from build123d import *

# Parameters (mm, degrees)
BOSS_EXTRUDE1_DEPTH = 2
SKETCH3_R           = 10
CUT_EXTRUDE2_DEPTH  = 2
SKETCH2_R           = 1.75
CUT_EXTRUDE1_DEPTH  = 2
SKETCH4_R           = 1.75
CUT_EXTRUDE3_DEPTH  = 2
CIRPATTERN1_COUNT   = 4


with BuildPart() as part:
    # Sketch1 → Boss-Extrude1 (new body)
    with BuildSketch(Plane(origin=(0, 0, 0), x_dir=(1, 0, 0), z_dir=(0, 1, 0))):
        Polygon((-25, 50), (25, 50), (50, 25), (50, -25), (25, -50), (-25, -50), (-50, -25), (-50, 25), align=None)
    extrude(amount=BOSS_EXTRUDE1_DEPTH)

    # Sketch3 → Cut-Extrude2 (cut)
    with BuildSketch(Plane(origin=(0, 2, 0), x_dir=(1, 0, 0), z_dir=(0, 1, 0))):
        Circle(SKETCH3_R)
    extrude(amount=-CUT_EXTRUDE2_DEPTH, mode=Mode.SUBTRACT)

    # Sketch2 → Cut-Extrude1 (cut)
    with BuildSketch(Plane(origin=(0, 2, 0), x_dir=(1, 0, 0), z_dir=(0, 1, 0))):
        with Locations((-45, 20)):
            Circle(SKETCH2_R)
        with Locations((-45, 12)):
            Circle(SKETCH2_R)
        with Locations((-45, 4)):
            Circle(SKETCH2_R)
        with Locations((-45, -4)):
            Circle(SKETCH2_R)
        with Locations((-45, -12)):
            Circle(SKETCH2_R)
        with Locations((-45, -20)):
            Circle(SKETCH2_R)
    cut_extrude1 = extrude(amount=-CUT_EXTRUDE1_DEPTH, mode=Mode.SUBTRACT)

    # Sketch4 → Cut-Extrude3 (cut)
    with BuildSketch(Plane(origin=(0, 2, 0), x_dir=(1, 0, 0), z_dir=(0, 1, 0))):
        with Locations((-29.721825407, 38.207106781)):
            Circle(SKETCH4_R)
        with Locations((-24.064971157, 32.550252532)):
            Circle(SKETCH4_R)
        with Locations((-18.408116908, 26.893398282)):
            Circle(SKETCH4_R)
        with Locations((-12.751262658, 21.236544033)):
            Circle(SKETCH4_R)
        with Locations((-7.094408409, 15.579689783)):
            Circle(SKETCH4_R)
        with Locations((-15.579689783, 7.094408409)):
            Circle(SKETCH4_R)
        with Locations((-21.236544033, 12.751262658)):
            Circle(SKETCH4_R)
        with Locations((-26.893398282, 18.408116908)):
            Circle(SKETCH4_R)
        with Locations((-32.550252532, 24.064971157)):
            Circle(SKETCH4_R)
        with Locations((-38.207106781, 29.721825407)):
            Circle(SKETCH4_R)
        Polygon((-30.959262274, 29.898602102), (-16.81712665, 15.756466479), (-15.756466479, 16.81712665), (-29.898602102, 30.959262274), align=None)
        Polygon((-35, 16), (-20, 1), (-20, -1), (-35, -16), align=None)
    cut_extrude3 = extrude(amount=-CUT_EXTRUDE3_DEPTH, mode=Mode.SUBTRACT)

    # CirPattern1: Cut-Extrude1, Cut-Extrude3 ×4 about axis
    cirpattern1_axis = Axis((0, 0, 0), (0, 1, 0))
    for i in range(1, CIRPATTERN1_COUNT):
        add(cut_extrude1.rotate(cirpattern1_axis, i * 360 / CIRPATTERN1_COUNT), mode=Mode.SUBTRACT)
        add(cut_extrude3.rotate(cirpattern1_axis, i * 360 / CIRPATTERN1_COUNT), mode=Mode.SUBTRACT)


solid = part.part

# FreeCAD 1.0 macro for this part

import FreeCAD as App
import Part
import Sketcher
from FreeCAD import Vector


def add_polygon(sketch, points):
    """Adds a closed chain of lines whose ends are joined by coincident constraints."""
    first, n = sketch.GeometryCount, len(points)
    for a, b in zip(points, points[1:] + points[:1]):
        sketch.addGeometry(Part.LineSegment(App.Vector(*a, 0), App.Vector(*b, 0)), False)
    for i in range(n):
        sketch.addConstraint(Sketcher.Constraint("Coincident", first + i, 2, first + (i + 1) % n, 1))

doc = App.newDocument("Part")
body = doc.addObject("PartDesign::Body", "Body")

sketch1 = body.newObject("Sketcher::SketchObject", "Sketch")
sketch1.AttachmentSupport = (doc.getObject("XZ_Plane"), [""])
sketch1.MapMode = "FlatFace"
add_polygon(sketch1, [(25, -50), (-25, -50), (-50, -25), (-50, 25), (-25, 50), (25, 50), (50, 25), (50, -25)])
sketch1.addConstraint(Sketcher.Constraint("Horizontal", 0))
sketch1.addConstraint(Sketcher.Constraint("Vertical", 2))
sketch1.addConstraint(Sketcher.Constraint("Horizontal", 4))
sketch1.addConstraint(Sketcher.Constraint("Vertical", 6))
sketch1.addConstraint(Sketcher.Constraint("Symmetric", 0, 2, 4, 2, -1, 1))
sketch1.addConstraint(Sketcher.Constraint("Symmetric", 1, 2, 5, 2, -1, 1))
sketch1.addConstraint(Sketcher.Constraint("Perpendicular", 1, 3))
sketch1.addConstraint(Sketcher.Constraint("Perpendicular", 5, 7))
sketch1.addConstraint(Sketcher.Constraint("Horizontal", 2, 2, 5, 2))
sketch1.addConstraint(Sketcher.Constraint("Horizontal", 1, 2, 6, 2))
sketch1.addConstraint(Sketcher.Constraint("Vertical", 0, 2, 3, 2))
sketch1.addConstraint(Sketcher.Constraint("Equal", 4, 2))
sketch1.addConstraint(Sketcher.Constraint("DistanceX", 0, 2, 0, 1, 50.0))
sketch1.addConstraint(Sketcher.Constraint("DistanceY", 0, 2, -1, 1, 50.0))
pad1 = body.newObject("PartDesign::Pad", "Pad")
pad1.Profile = sketch1
pad1.Length = 2
pad1.Reversed = True

sketch2 = body.newObject("Sketcher::SketchObject", "Sketch001")
sketch2.AttachmentSupport = (doc.getObject("XZ_Plane"), [""])
sketch2.MapMode = "FlatFace"
sketch2.AttachmentOffset = App.Placement(Vector(0, 0, -2), App.Rotation())
sketch2.addGeometry(Part.Circle(Vector(0, 0, 0), Vector(0, 0, 1), 10), False)
sketch2.addConstraint(Sketcher.Constraint("Coincident", 0, 3, -1, 1))
sketch2.addConstraint(Sketcher.Constraint("Diameter", 0, 20.0))
pocket1 = body.newObject("PartDesign::Pocket", "Pocket")
pocket1.Profile = sketch2
pocket1.Length = 2
pocket1.Reversed = True

sketch3 = body.newObject("Sketcher::SketchObject", "Sketch002")
sketch3.AttachmentSupport = (doc.getObject("XZ_Plane"), [""])
sketch3.MapMode = "FlatFace"
sketch3.AttachmentOffset = App.Placement(Vector(0, 0, -2), App.Rotation())
sketch3.addGeometry(Part.Circle(Vector(-45, -20, 0), Vector(0, 0, 1), 1.8), False)
sketch3.addGeometry(Part.Circle(Vector(-45, -12, 0), Vector(0, 0, 1), 1.8), False)
sketch3.addGeometry(Part.Circle(Vector(-45, -4, 0), Vector(0, 0, 1), 1.8), False)
sketch3.addGeometry(Part.Circle(Vector(-45, 4, 0), Vector(0, 0, 1), 1.8), False)
sketch3.addGeometry(Part.Circle(Vector(-45, 12, 0), Vector(0, 0, 1), 1.8), False)
sketch3.addGeometry(Part.Circle(Vector(-45, 20, 0), Vector(0, 0, 1), 1.8), False)
sketch3.addConstraint(Sketcher.Constraint("Equal", 0, 1))
sketch3.addConstraint(Sketcher.Constraint("Equal", 1, 2))
sketch3.addConstraint(Sketcher.Constraint("Equal", 2, 3))
sketch3.addConstraint(Sketcher.Constraint("Equal", 3, 4))
sketch3.addConstraint(Sketcher.Constraint("Equal", 4, 5))
sketch3.addConstraint(Sketcher.Constraint("Symmetric", 2, 3, 3, 3, -1))
sketch3.addConstraint(Sketcher.Constraint("Symmetric", 1, 3, 4, 3, -1))
sketch3.addConstraint(Sketcher.Constraint("Symmetric", 0, 3, 5, 3, -1))
sketch3.addConstraint(Sketcher.Constraint("Vertical", 0, 3, 1, 3))
sketch3.addConstraint(Sketcher.Constraint("Vertical", 1, 3, 2, 3))
sketch3.addConstraint(Sketcher.Constraint("Diameter", 0, 3.5))
sketch3.addConstraint(Sketcher.Constraint("DistanceX", 0, 3, -1, 1, 45.0))
sketch3.addConstraint(Sketcher.Constraint("DistanceY", 0, 3, -1, 1, 20.0))
sketch3.addConstraint(Sketcher.Constraint("DistanceY", 1, 3, -1, 1, 12.0))
sketch3.addConstraint(Sketcher.Constraint("DistanceY", 2, 3, -1, 1, 4.0))
pocket2 = body.newObject("PartDesign::Pocket", "Pocket001")
pocket2.Profile = sketch3
pocket2.Length = 2
pocket2.Reversed = True

sketch4 = body.newObject("Sketcher::SketchObject", "Sketch003")
sketch4.AttachmentSupport = (doc.getObject("XZ_Plane"), [""])
sketch4.MapMode = "FlatFace"
sketch4.AttachmentOffset = App.Placement(Vector(0, 0, -2), App.Rotation())
sketch4.addGeometry(Part.Circle(Vector(-29.7, -38.2, 0), Vector(0, 0, 1), 1.8), False)
sketch4.addGeometry(Part.Circle(Vector(-24.1, -32.6, 0), Vector(0, 0, 1), 1.8), False)
sketch4.addGeometry(Part.Circle(Vector(-18.4, -26.9, 0), Vector(0, 0, 1), 1.8), False)
sketch4.addGeometry(Part.Circle(Vector(-12.8, -21.2, 0), Vector(0, 0, 1), 1.8), False)
sketch4.addGeometry(Part.Circle(Vector(-7.1, -15.6, 0), Vector(0, 0, 1), 1.8), False)
sketch4.addGeometry(Part.Circle(Vector(-15.6, -7.1, 0), Vector(0, 0, 1), 1.8), False)
sketch4.addGeometry(Part.Circle(Vector(-21.2, -12.8, 0), Vector(0, 0, 1), 1.8), False)
sketch4.addGeometry(Part.Circle(Vector(-26.9, -18.4, 0), Vector(0, 0, 1), 1.8), False)
sketch4.addGeometry(Part.Circle(Vector(-32.6, -24.1, 0), Vector(0, 0, 1), 1.8), False)
sketch4.addGeometry(Part.Circle(Vector(-38.2, -29.7, 0), Vector(0, 0, 1), 1.8), False)
add_polygon(sketch4, [(-31, -29.9), (-16.8, -15.8), (-15.8, -16.8), (-29.9, -31)])
add_polygon(sketch4, [(-20, -1), (-35, -16), (-35, 16), (-20, 1)])
sketch4.addConstraint(Sketcher.Constraint("Vertical", 15))
sketch4.addConstraint(Sketcher.Constraint("Vertical", 17))
sketch4.addConstraint(Sketcher.Constraint("Equal", 0, 1))
sketch4.addConstraint(Sketcher.Constraint("Equal", 1, 2))
sketch4.addConstraint(Sketcher.Constraint("Equal", 2, 3))
sketch4.addConstraint(Sketcher.Constraint("Equal", 3, 4))
sketch4.addConstraint(Sketcher.Constraint("Equal", 4, 5))
sketch4.addConstraint(Sketcher.Constraint("Equal", 5, 6))
sketch4.addConstraint(Sketcher.Constraint("Equal", 6, 7))
sketch4.addConstraint(Sketcher.Constraint("Equal", 7, 8))
sketch4.addConstraint(Sketcher.Constraint("Equal", 8, 9))
sketch4.addConstraint(Sketcher.Constraint("Perpendicular", 10, 11))
sketch4.addConstraint(Sketcher.Constraint("Perpendicular", 11, 12))
sketch4.addConstraint(Sketcher.Constraint("Perpendicular", 12, 13))
sketch4.addConstraint(Sketcher.Constraint("Perpendicular", 13, 14))
sketch4.addConstraint(Sketcher.Constraint("Perpendicular", 14, 16))
sketch4.addConstraint(Sketcher.Constraint("Equal", 14, 16))
sketch4.addConstraint(Sketcher.Constraint("Diameter", 0, 3.5))
sketch4.addConstraint(Sketcher.Constraint("DistanceY", 15, 1, 15, 2, 32.0))
sketch4.addConstraint(Sketcher.Constraint("DistanceY", 17, 2, 17, 1, 2.0))
sketch4.addConstraint(Sketcher.Constraint("Distance", 10, 20.0))
sketch4.addConstraint(Sketcher.Constraint("DistanceX", 14, 2, -1, 1, 35.0))
sketch4.addConstraint(Sketcher.Constraint("DistanceY", 14, 2, -1, 1, 16.0))
sketch4.addConstraint(Sketcher.Constraint("Distance", 11, 1.5))
sketch4.addConstraint(Sketcher.Constraint("DistanceY", 2, 3, -1, 1, 26.893398))
sketch4.addConstraint(Sketcher.Constraint("DistanceX", 7, 3, -1, 1, 26.893398))
sketch4.addConstraint(Sketcher.Constraint("DistanceY", 0, 3, 5, 3, 31.112698))
sketch4.addConstraint(Sketcher.Constraint("DistanceX", 1, 3, -1, 1, 24.064971))
sketch4.addConstraint(Sketcher.Constraint("DistanceX", 4, 3, -1, 1, 7.094408))
sketch4.addConstraint(Sketcher.Constraint("DistanceY", 4, 3, -1, 1, 15.57969))
sketch4.addConstraint(Sketcher.Constraint("DistanceX", 5, 3, -1, 1, 15.57969))
sketch4.addConstraint(Sketcher.Constraint("DistanceY", 5, 3, -1, 1, 7.094408))
sketch4.addConstraint(Sketcher.Constraint("DistanceY", 8, 3, -1, 1, 24.064971))
sketch4.addConstraint(Sketcher.Constraint("DistanceX", 0, 3, 2, 3, 11.313708))
sketch4.addConstraint(Sketcher.Constraint("DistanceX", 1, 3, 3, 3, 11.313708))
sketch4.addConstraint(Sketcher.Constraint("DistanceY", 1, 3, 3, 3, 11.313708))
sketch4.addConstraint(Sketcher.Constraint("DistanceX", 2, 3, 4, 3, 11.313708))
sketch4.addConstraint(Sketcher.Constraint("DistanceX", 6, 3, 3, 3, 8.485281))
sketch4.addConstraint(Sketcher.Constraint("DistanceY", 3, 3, 6, 3, 8.485281))
sketch4.addConstraint(Sketcher.Constraint("DistanceY", 2, 3, 7, 3, 8.485281))
sketch4.addConstraint(Sketcher.Constraint("DistanceX", 8, 3, 1, 3, 8.485281))
sketch4.addConstraint(Sketcher.Constraint("DistanceY", 1, 3, 8, 3, 8.485281))
sketch4.addConstraint(Sketcher.Constraint("DistanceX", 9, 3, 0, 3, 8.485281))
sketch4.addConstraint(Sketcher.Constraint("DistanceY", 0, 3, 9, 3, 8.485281))
sketch4.addConstraint(Sketcher.Constraint("DistanceY", 10, 2, 5, 3, 8.662058))
sketch4.addConstraint(Sketcher.Constraint("DistanceX", 10, 2, 4, 3, 9.722718))
pocket3 = body.newObject("PartDesign::Pocket", "Pocket002")
pocket3.Profile = sketch4
pocket3.Length = 2
pocket3.Reversed = True
doc.recompute()

polarpattern = body.newObject("PartDesign::PolarPattern", "PolarPattern")
polarpattern.Originals = [pocket2, pocket3]
polarpattern.Axis = (doc.getObject("Y_Axis"), [""])
polarpattern.Angle = 360
polarpattern.Occurrences = 4
body.Tip = polarpattern

doc.recompute()
